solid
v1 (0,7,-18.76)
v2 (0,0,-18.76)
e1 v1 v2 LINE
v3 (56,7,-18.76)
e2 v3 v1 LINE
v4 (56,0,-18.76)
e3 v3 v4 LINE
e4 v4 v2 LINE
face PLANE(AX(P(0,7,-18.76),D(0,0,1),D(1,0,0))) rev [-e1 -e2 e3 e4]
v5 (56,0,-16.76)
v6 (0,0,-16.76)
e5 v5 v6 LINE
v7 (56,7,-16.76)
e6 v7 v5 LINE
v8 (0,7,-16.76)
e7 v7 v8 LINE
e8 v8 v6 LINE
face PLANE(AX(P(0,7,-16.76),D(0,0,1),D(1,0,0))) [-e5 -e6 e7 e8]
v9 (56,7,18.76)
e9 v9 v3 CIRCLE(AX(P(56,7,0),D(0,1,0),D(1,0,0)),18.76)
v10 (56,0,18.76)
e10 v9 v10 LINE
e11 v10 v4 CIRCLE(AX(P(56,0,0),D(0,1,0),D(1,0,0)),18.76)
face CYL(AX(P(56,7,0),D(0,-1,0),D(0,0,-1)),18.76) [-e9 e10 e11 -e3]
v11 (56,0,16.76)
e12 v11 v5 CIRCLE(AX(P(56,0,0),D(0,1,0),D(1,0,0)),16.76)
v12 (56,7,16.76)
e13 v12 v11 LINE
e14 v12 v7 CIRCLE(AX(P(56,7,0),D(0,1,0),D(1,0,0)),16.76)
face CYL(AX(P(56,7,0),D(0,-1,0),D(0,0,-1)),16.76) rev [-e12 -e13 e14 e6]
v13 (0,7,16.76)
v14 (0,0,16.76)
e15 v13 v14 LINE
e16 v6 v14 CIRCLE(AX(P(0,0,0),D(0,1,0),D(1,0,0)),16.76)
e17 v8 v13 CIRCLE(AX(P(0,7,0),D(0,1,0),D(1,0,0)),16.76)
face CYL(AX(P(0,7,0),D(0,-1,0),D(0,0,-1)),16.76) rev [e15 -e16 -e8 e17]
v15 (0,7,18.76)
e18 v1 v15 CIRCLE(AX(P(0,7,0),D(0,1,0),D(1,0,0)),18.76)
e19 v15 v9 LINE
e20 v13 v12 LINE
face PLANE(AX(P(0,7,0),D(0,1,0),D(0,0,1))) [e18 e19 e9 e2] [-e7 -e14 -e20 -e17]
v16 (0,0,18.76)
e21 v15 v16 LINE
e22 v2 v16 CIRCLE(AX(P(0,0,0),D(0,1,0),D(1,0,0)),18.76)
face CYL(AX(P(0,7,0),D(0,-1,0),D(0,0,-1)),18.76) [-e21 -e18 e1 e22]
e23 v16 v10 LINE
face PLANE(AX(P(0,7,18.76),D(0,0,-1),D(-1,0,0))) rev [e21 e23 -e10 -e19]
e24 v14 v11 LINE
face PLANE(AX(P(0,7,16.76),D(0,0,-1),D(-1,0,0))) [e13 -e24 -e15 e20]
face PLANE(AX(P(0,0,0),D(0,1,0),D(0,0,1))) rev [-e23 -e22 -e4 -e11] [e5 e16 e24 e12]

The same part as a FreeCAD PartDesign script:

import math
import FreeCAD as App
import Part
import Sketcher

doc = App.newDocument("Part")
params = doc.addObject("Spreadsheet::Sheet", "Params")
for row, (alias, value) in enumerate([
    ("sketch1_width", "56 mm"),
    ("sketch1_radius", "18.76 mm"),
    ("sketch1_radius2", "16.76 mm"),
    ("pad1_length", "7 mm"),
], start=1):
    params.set(f"A{row}", alias)
    params.set(f"B{row}", "=" + value)
    params.setAlias(f"B{row}", alias)

body = doc.addObject("PartDesign::Body", "Body")

sketch1 = body.newObject("Sketcher::SketchObject", "Sketch")
sketch1.AttachmentSupport = (doc.getObject("XZ_Plane"), [""])
sketch1.MapMode = "FlatFace"
sketch1.addGeometry([
    Part.LineSegment(App.Vector(0, 18.76, 0), App.Vector(56, 18.76, 0)),
    Part.ArcOfCircle(Part.Circle(App.Vector(56, 0, 0), App.Vector(0, 0, 1), 18.76), math.radians(-90), math.radians(90)),
    Part.LineSegment(App.Vector(56, -18.76, 0), App.Vector(0, -18.76, 0)),
    Part.ArcOfCircle(Part.Circle(App.Vector(0, 0, 0), App.Vector(0, 0, 1), 18.76), math.radians(90), math.radians(270)),
    Part.LineSegment(App.Vector(56, 16.76, 0), App.Vector(0, 16.76, 0)),
    Part.ArcOfCircle(Part.Circle(App.Vector(0, 0, 0), App.Vector(0, 0, 1), 16.76), math.radians(90), math.radians(270)),
    Part.LineSegment(App.Vector(0, -16.76, 0), App.Vector(56, -16.76, 0)),
    Part.ArcOfCircle(Part.Circle(App.Vector(56, 0, 0), App.Vector(0, 0, 1), 16.76), math.radians(-90), math.radians(90)),
], False)
sketch1.addConstraint([
    Sketcher.Constraint("Tangent", 0, 2, 1, 2),
    Sketcher.Constraint("Tangent", 1, 1, 2, 1),
    Sketcher.Constraint("Tangent", 2, 2, 3, 2),
    Sketcher.Constraint("Tangent", 3, 1, 0, 1),
    Sketcher.Constraint("Tangent", 4, 2, 5, 1),
    Sketcher.Constraint("Tangent", 5, 2, 6, 1),
    Sketcher.Constraint("Tangent", 6, 2, 7, 1),
    Sketcher.Constraint("Tangent", 7, 2, 4, 1),
    Sketcher.Constraint("Horizontal", 0),
    Sketcher.Constraint("Horizontal", 2),
    Sketcher.Constraint("Horizontal", 4),
    Sketcher.Constraint("Horizontal", 6),
    Sketcher.Constraint("Coincident", 3, 3, -1, 1),
    Sketcher.Constraint("Coincident", 5, 3, -1, 1),
    Sketcher.Constraint("Vertical", 7, 3, 0, 2),
    Sketcher.Constraint("DistanceX", 0, 1, 0, 2, 56.0),
    Sketcher.Constraint("Radius", 1, 18.76),
    Sketcher.Constraint("Radius", 5, 16.76),
])
sketch1.setExpression("Constraints[15]", "Params.sketch1_width")
sketch1.setExpression("Constraints[16]", "Params.sketch1_radius")
sketch1.setExpression("Constraints[17]", "Params.sketch1_radius2")
pad1 = body.newObject("PartDesign::Pad", "Pad")
pad1.Profile = sketch1
pad1.setExpression("Length", "Params.pad1_length")
pad1.Reversed = True

doc.recompute()
